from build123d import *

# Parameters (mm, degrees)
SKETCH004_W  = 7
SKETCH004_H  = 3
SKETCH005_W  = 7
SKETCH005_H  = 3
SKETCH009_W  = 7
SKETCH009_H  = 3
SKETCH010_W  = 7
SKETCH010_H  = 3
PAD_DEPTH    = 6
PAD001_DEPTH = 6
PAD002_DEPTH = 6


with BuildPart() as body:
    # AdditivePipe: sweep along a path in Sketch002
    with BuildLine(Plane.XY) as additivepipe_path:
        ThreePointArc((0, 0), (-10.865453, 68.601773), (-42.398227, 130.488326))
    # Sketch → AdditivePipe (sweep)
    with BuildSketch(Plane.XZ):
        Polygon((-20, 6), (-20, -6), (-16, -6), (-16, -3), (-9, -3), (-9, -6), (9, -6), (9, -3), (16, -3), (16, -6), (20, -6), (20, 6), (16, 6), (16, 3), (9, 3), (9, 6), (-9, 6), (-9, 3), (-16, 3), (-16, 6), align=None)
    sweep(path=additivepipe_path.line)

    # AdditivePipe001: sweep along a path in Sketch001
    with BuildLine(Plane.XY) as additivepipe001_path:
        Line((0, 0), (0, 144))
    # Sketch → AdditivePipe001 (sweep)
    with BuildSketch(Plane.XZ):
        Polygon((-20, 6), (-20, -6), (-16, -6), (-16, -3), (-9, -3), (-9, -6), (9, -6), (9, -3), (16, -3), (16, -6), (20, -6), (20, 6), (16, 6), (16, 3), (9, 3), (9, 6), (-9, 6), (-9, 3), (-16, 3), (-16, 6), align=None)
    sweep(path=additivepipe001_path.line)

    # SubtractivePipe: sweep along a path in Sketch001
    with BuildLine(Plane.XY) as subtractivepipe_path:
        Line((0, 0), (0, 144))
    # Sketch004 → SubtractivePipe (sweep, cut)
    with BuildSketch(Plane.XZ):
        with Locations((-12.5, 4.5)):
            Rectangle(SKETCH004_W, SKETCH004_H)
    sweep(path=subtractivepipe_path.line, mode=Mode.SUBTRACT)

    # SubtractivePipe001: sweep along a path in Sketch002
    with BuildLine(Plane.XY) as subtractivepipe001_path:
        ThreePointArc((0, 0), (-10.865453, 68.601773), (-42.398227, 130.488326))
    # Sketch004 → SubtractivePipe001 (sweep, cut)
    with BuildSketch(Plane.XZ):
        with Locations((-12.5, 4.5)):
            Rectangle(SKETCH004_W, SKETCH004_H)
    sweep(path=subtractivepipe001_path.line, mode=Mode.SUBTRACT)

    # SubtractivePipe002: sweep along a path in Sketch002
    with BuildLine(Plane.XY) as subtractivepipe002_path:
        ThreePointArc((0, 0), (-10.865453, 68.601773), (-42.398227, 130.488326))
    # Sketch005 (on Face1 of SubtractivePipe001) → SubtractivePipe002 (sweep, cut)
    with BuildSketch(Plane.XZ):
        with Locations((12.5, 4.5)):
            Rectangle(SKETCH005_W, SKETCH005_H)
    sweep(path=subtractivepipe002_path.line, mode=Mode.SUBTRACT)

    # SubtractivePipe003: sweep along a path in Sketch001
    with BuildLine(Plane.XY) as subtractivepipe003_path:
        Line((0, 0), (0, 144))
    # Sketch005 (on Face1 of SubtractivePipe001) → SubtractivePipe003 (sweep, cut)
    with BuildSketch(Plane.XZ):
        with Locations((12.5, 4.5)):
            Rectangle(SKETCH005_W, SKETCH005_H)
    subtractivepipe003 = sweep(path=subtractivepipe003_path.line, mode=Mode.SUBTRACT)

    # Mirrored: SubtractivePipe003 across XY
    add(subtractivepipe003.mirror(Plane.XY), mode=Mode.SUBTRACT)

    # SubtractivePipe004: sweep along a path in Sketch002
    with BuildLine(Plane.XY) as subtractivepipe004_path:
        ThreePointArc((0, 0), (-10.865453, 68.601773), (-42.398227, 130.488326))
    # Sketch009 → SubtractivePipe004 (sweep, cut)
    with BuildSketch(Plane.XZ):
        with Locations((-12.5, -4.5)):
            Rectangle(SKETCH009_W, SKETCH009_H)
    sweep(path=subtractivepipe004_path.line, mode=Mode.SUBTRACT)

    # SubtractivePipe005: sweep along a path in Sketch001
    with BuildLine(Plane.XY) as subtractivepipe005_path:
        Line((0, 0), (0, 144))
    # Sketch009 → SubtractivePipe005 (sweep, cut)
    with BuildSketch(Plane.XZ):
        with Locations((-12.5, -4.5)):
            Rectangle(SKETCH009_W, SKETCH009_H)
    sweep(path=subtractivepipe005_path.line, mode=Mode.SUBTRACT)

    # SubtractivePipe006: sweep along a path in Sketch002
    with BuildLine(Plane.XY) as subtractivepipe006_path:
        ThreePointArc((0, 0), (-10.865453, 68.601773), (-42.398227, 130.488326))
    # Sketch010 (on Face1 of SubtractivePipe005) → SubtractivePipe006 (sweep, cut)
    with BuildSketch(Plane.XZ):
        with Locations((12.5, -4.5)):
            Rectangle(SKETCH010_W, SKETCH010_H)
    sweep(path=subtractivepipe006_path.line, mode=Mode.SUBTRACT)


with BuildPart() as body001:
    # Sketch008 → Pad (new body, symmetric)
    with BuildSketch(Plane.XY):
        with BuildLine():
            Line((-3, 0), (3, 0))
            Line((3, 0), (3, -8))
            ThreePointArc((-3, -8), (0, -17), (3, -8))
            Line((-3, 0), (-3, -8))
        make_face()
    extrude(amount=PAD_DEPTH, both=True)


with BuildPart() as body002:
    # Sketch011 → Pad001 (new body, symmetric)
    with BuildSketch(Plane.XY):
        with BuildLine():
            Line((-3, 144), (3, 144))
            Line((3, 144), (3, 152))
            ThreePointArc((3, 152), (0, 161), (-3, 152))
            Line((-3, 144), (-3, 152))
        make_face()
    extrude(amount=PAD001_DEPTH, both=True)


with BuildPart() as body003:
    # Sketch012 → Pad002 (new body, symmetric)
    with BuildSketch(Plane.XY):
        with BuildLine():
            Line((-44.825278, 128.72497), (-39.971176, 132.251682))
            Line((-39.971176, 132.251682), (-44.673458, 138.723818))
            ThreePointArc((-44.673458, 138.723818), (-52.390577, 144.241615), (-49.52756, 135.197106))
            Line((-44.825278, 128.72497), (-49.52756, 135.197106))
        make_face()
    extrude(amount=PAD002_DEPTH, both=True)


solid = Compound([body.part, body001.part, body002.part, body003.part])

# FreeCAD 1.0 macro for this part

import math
import FreeCAD as App
import Part
import Sketcher
Q = App.Units.Quantity


def add_polygon(sketch, points):
    """Adds a closed chain of lines whose ends are joined by coincident constraints."""
    first, n = sketch.GeometryCount, len(points)
    for a, b in zip(points, points[1:] + points[:1]):
        sketch.addGeometry(Part.LineSegment(App.Vector(*a, 0), App.Vector(*b, 0)), False)
    for i in range(n):
        sketch.addConstraint(Sketcher.Constraint("Coincident", first + i, 2, first + (i + 1) % n, 1))

doc = App.newDocument("Part")
body = doc.addObject("PartDesign::Body", "Body")

# Sketch on XZ plane
sketch1 = body.newObject("Sketcher::SketchObject", "Sketch")
sketch1.AttachmentSupport = (doc.getObject("XZ_Plane"), [""])
sketch1.MapMode = "FlatFace"
add_polygon(sketch1, [(-20, 6), (-20, -6), (-16, -6), (-16, -3), (-9, -3), (-9, -6), (9, -6), (9, -3), (16, -3), (16, -6), (20, -6), (20, 6), (16, 6), (16, 3), (9, 3), (9, 6), (-9, 6), (-9, 3), (-16, 3), (-16, 6)])  # lines 0-19
sketch1.addConstraint(Sketcher.Constraint("Vertical", 0))
sketch1.addConstraint(Sketcher.Constraint("Horizontal", 1))
sketch1.addConstraint(Sketcher.Constraint("Vertical", 2))
sketch1.addConstraint(Sketcher.Constraint("Horizontal", 3))
sketch1.addConstraint(Sketcher.Constraint("Vertical", 4))
sketch1.addConstraint(Sketcher.Constraint("Horizontal", 5))
sketch1.addConstraint(Sketcher.Constraint("Vertical", 6))
sketch1.addConstraint(Sketcher.Constraint("Horizontal", 7))
sketch1.addConstraint(Sketcher.Constraint("Vertical", 8))
sketch1.addConstraint(Sketcher.Constraint("Horizontal", 9))
sketch1.addConstraint(Sketcher.Constraint("Vertical", 10))
sketch1.addConstraint(Sketcher.Constraint("Horizontal", 11))
sketch1.addConstraint(Sketcher.Constraint("Vertical", 12))
sketch1.addConstraint(Sketcher.Constraint("Horizontal", 13))
sketch1.addConstraint(Sketcher.Constraint("Vertical", 14))
sketch1.addConstraint(Sketcher.Constraint("Horizontal", 15))
sketch1.addConstraint(Sketcher.Constraint("Vertical", 16))
sketch1.addConstraint(Sketcher.Constraint("Horizontal", 17))
sketch1.addConstraint(Sketcher.Constraint("Vertical", 18))
sketch1.addConstraint(Sketcher.Constraint("Horizontal", 19))
sketch1.addConstraint(Sketcher.Constraint("Symmetric", 0, 2, 10, 2, -1, 1))
sketch1.addConstraint(Sketcher.Constraint("Symmetric", 2, 2, 12, 2, -1, 1))
sketch1.addConstraint(Sketcher.Constraint("Symmetric", 4, 2, 14, 2, -1, 1))
sketch1.addConstraint(Sketcher.Constraint("Symmetric", 6, 2, 16, 2, -1, 1))
sketch1.addConstraint(Sketcher.Constraint("Symmetric", 8, 2, 18, 2, -1, 1))
sketch1.addConstraint(Sketcher.Constraint("Symmetric", 3, 2, 6, 2, -2))
sketch1.addConstraint(Sketcher.Constraint("Symmetric", 1, 2, 8, 2, -2))
sketch1.addConstraint(Sketcher.Constraint("Horizontal", 1, 2, 4, 2))
sketch1.addConstraint(Sketcher.Constraint("DistanceX", 1, 1, 1, 2, 4.0))
sketch1.addConstraint(Sketcher.Constraint("DistanceX", 3, 1, 3, 2, 7.0))
sketch1.addConstraint(Sketcher.Constraint("DistanceX", 5, 1, 5, 2, 18.0))
sketch1.addConstraint(Sketcher.Constraint("DistanceY", 0, 2, 0, 1, 12.0))
sketch1.addConstraint(Sketcher.Constraint("DistanceY", 2, 1, 2, 2, 3.0))

# Sketch on XY plane
sketch2 = body.newObject("Sketcher::SketchObject", "Sketch001")
sketch2.AttachmentSupport = (doc.getObject("XY_Plane"), [""])
sketch2.MapMode = "FlatFace"
sketch2.addGeometry(Part.ArcOfCircle(Part.Circle(App.Vector(-221.999993, 0.000002, 0), App.Vector(0, 0, 1), 221.999993), math.radians(-0.000001), math.radians(36)), False)
sketch2.addConstraint(Sketcher.Constraint("Coincident", 0, 1, -1, 1))
sketch2.addConstraint(Sketcher.Constraint("Radius", 0, 221.999993))
sketch2.addConstraint(Sketcher.Constraint("DistanceX", 0, 2, -1, 1, 42.398227))
sketch2.addConstraint(Sketcher.Constraint("DistanceY", -1, 1, 0, 2, 130.488326))
doc.recompute()

additivepipe = body.newObject("PartDesign::AdditivePipe", "AdditivePipe")
additivepipe.Profile = sketch1
additivepipe.Spine = (sketch2, ["Edge1"])

# Sketch on XZ plane
sketch3 = body.newObject("Sketcher::SketchObject", "Sketch002")
sketch3.AttachmentSupport = (doc.getObject("XZ_Plane"), [""])
sketch3.MapMode = "FlatFace"
add_polygon(sketch3, [(-20, 6), (-20, -6), (-16, -6), (-16, -3), (-9, -3), (-9, -6), (9, -6), (9, -3), (16, -3), (16, -6), (20, -6), (20, 6), (16, 6), (16, 3), (9, 3), (9, 6), (-9, 6), (-9, 3), (-16, 3), (-16, 6)])  # lines 0-19
sketch3.addConstraint(Sketcher.Constraint("Vertical", 0))
sketch3.addConstraint(Sketcher.Constraint("Horizontal", 1))
sketch3.addConstraint(Sketcher.Constraint("Vertical", 2))
sketch3.addConstraint(Sketcher.Constraint("Horizontal", 3))
sketch3.addConstraint(Sketcher.Constraint("Vertical", 4))
sketch3.addConstraint(Sketcher.Constraint("Horizontal", 5))
sketch3.addConstraint(Sketcher.Constraint("Vertical", 6))
sketch3.addConstraint(Sketcher.Constraint("Horizontal", 7))
sketch3.addConstraint(Sketcher.Constraint("Vertical", 8))
sketch3.addConstraint(Sketcher.Constraint("Horizontal", 9))
sketch3.addConstraint(Sketcher.Constraint("Vertical", 10))
sketch3.addConstraint(Sketcher.Constraint("Horizontal", 11))
sketch3.addConstraint(Sketcher.Constraint("Vertical", 12))
sketch3.addConstraint(Sketcher.Constraint("Horizontal", 13))
sketch3.addConstraint(Sketcher.Constraint("Vertical", 14))
sketch3.addConstraint(Sketcher.Constraint("Horizontal", 15))
sketch3.addConstraint(Sketcher.Constraint("Vertical", 16))
sketch3.addConstraint(Sketcher.Constraint("Horizontal", 17))
sketch3.addConstraint(Sketcher.Constraint("Vertical", 18))
sketch3.addConstraint(Sketcher.Constraint("Horizontal", 19))
sketch3.addConstraint(Sketcher.Constraint("Symmetric", 0, 2, 10, 2, -1, 1))
sketch3.addConstraint(Sketcher.Constraint("Symmetric", 2, 2, 12, 2, -1, 1))
sketch3.addConstraint(Sketcher.Constraint("Symmetric", 4, 2, 14, 2, -1, 1))
sketch3.addConstraint(Sketcher.Constraint("Symmetric", 6, 2, 16, 2, -1, 1))
sketch3.addConstraint(Sketcher.Constraint("Symmetric", 8, 2, 18, 2, -1, 1))
sketch3.addConstraint(Sketcher.Constraint("Symmetric", 3, 2, 6, 2, -2))
sketch3.addConstraint(Sketcher.Constraint("Symmetric", 1, 2, 8, 2, -2))
sketch3.addConstraint(Sketcher.Constraint("Horizontal", 1, 2, 4, 2))
sketch3.addConstraint(Sketcher.Constraint("DistanceX", 1, 1, 1, 2, 4.0))
sketch3.addConstraint(Sketcher.Constraint("DistanceX", 3, 1, 3, 2, 7.0))
sketch3.addConstraint(Sketcher.Constraint("DistanceX", 5, 1, 5, 2, 18.0))
sketch3.addConstraint(Sketcher.Constraint("DistanceY", 0, 2, 0, 1, 12.0))
sketch3.addConstraint(Sketcher.Constraint("DistanceY", 2, 1, 2, 2, 3.0))

# Sketch on XY plane
sketch4 = body.newObject("Sketcher::SketchObject", "Sketch003")
sketch4.AttachmentSupport = (doc.getObject("XY_Plane"), [""])
sketch4.MapMode = "FlatFace"
sketch4.addGeometry(Part.LineSegment(App.Vector(0, 0, 0), App.Vector(0, 144, 0)), False)
sketch4.addConstraint(Sketcher.Constraint("Vertical", 0))
sketch4.addConstraint(Sketcher.Constraint("Coincident", 0, 1, -1, 1))
sketch4.addConstraint(Sketcher.Constraint("DistanceY", 0, 1, 0, 2, 144.0))
doc.recompute()

additivepipe2 = body.newObject("PartDesign::AdditivePipe", "AdditivePipe001")
additivepipe2.Profile = sketch3
additivepipe2.Spine = (sketch4, ["Edge1"])

# Sketch on XZ plane
sketch5 = body.newObject("Sketcher::SketchObject", "Sketch004")
sketch5.AttachmentSupport = (doc.getObject("XZ_Plane"), [""])
sketch5.MapMode = "FlatFace"
add_polygon(sketch5, [(-16, 6), (-16, 3), (-9, 3), (-9, 6)])  # lines 0-3
sketch5.addConstraint(Sketcher.Constraint("Vertical", 0))
sketch5.addConstraint(Sketcher.Constraint("Horizontal", 1))
sketch5.addConstraint(Sketcher.Constraint("Vertical", 2))
sketch5.addConstraint(Sketcher.Constraint("Horizontal", 3))
sketch5.addConstraint(Sketcher.Constraint("DistanceX", 1, 1, 1, 2, 7.0))
sketch5.addConstraint(Sketcher.Constraint("DistanceY", 0, 2, 0, 1, 3.0))
sketch5.addConstraint(Sketcher.Constraint("DistanceX", 0, 2, -1, 1, 16.0))
sketch5.addConstraint(Sketcher.Constraint("DistanceY", -1, 1, 0, 2, 3.0))

# Sketch on XY plane
sketch6 = body.newObject("Sketcher::SketchObject", "Sketch005")
sketch6.AttachmentSupport = (doc.getObject("XY_Plane"), [""])
sketch6.MapMode = "FlatFace"
sketch6.addGeometry(Part.LineSegment(App.Vector(0, 0, 0), App.Vector(0, 144, 0)), False)
sketch6.addConstraint(Sketcher.Constraint("Vertical", 0))
sketch6.addConstraint(Sketcher.Constraint("Coincident", 0, 1, -1, 1))
sketch6.addConstraint(Sketcher.Constraint("DistanceY", 0, 1, 0, 2, 144.0))
doc.recompute()

subtractivepipe = body.newObject("PartDesign::SubtractivePipe", "SubtractivePipe")
subtractivepipe.Profile = sketch5
subtractivepipe.Spine = (sketch6, ["Edge1"])

# Sketch on XZ plane
sketch7 = body.newObject("Sketcher::SketchObject", "Sketch006")
sketch7.AttachmentSupport = (doc.getObject("XZ_Plane"), [""])
sketch7.MapMode = "FlatFace"
add_polygon(sketch7, [(-16, 6), (-16, 3), (-9, 3), (-9, 6)])  # lines 0-3
sketch7.addConstraint(Sketcher.Constraint("Vertical", 0))
sketch7.addConstraint(Sketcher.Constraint("Horizontal", 1))
sketch7.addConstraint(Sketcher.Constraint("Vertical", 2))
sketch7.addConstraint(Sketcher.Constraint("Horizontal", 3))
sketch7.addConstraint(Sketcher.Constraint("DistanceX", 1, 1, 1, 2, 7.0))
sketch7.addConstraint(Sketcher.Constraint("DistanceY", 0, 2, 0, 1, 3.0))
sketch7.addConstraint(Sketcher.Constraint("DistanceX", 0, 2, -1, 1, 16.0))
sketch7.addConstraint(Sketcher.Constraint("DistanceY", -1, 1, 0, 2, 3.0))

# Sketch on XY plane
sketch8 = body.newObject("Sketcher::SketchObject", "Sketch007")
sketch8.AttachmentSupport = (doc.getObject("XY_Plane"), [""])
sketch8.MapMode = "FlatFace"
sketch8.addGeometry(Part.ArcOfCircle(Part.Circle(App.Vector(-221.999993, 0.000002, 0), App.Vector(0, 0, 1), 221.999993), math.radians(-0.000001), math.radians(36)), False)
sketch8.addConstraint(Sketcher.Constraint("Coincident", 0, 1, -1, 1))
sketch8.addConstraint(Sketcher.Constraint("Radius", 0, 221.999993))
sketch8.addConstraint(Sketcher.Constraint("DistanceX", 0, 2, -1, 1, 42.398227))
sketch8.addConstraint(Sketcher.Constraint("DistanceY", -1, 1, 0, 2, 130.488326))
doc.recompute()

subtractivepipe2 = body.newObject("PartDesign::SubtractivePipe", "SubtractivePipe001")
subtractivepipe2.Profile = sketch7
subtractivepipe2.Spine = (sketch8, ["Edge1"])

# Sketch on XZ plane
sketch9 = body.newObject("Sketcher::SketchObject", "Sketch008")
sketch9.AttachmentSupport = (doc.getObject("XZ_Plane"), [""])
sketch9.MapMode = "FlatFace"
add_polygon(sketch9, [(9, 6), (9, 3), (16, 3), (16, 6)])  # lines 0-3
sketch9.addConstraint(Sketcher.Constraint("Vertical", 0))
sketch9.addConstraint(Sketcher.Constraint("Horizontal", 1))
sketch9.addConstraint(Sketcher.Constraint("Vertical", 2))
sketch9.addConstraint(Sketcher.Constraint("Horizontal", 3))
sketch9.addConstraint(Sketcher.Constraint("DistanceX", 1, 1, 1, 2, 7.0))
sketch9.addConstraint(Sketcher.Constraint("DistanceY", 0, 2, 0, 1, 3.0))
sketch9.addConstraint(Sketcher.Constraint("DistanceX", -1, 1, 0, 2, 9.0))
sketch9.addConstraint(Sketcher.Constraint("DistanceY", -1, 1, 0, 2, 3.0))

# Sketch on XY plane
sketch10 = body.newObject("Sketcher::SketchObject", "Sketch009")
sketch10.AttachmentSupport = (doc.getObject("XY_Plane"), [""])
sketch10.MapMode = "FlatFace"
sketch10.addGeometry(Part.ArcOfCircle(Part.Circle(App.Vector(-221.999993, 0.000002, 0), App.Vector(0, 0, 1), 221.999993), math.radians(-0.000001), math.radians(36)), False)
sketch10.addConstraint(Sketcher.Constraint("Coincident", 0, 1, -1, 1))
sketch10.addConstraint(Sketcher.Constraint("Radius", 0, 221.999993))
sketch10.addConstraint(Sketcher.Constraint("DistanceX", 0, 2, -1, 1, 42.398227))
sketch10.addConstraint(Sketcher.Constraint("DistanceY", -1, 1, 0, 2, 130.488326))
doc.recompute()

subtractivepipe3 = body.newObject("PartDesign::SubtractivePipe", "SubtractivePipe002")
subtractivepipe3.Profile = sketch9
subtractivepipe3.Spine = (sketch10, ["Edge1"])

# Sketch on XZ plane
sketch11 = body.newObject("Sketcher::SketchObject", "Sketch010")
sketch11.AttachmentSupport = (doc.getObject("XZ_Plane"), [""])
sketch11.MapMode = "FlatFace"
add_polygon(sketch11, [(9, 6), (9, 3), (16, 3), (16, 6)])  # lines 0-3
sketch11.addConstraint(Sketcher.Constraint("Vertical", 0))
sketch11.addConstraint(Sketcher.Constraint("Horizontal", 1))
sketch11.addConstraint(Sketcher.Constraint("Vertical", 2))
sketch11.addConstraint(Sketcher.Constraint("Horizontal", 3))
sketch11.addConstraint(Sketcher.Constraint("DistanceX", 1, 1, 1, 2, 7.0))
sketch11.addConstraint(Sketcher.Constraint("DistanceY", 0, 2, 0, 1, 3.0))
sketch11.addConstraint(Sketcher.Constraint("DistanceX", -1, 1, 0, 2, 9.0))
sketch11.addConstraint(Sketcher.Constraint("DistanceY", -1, 1, 0, 2, 3.0))

# Sketch on XY plane
sketch12 = body.newObject("Sketcher::SketchObject", "Sketch011")
sketch12.AttachmentSupport = (doc.getObject("XY_Plane"), [""])
sketch12.MapMode = "FlatFace"
sketch12.addGeometry(Part.LineSegment(App.Vector(0, 0, 0), App.Vector(0, 144, 0)), False)
sketch12.addConstraint(Sketcher.Constraint("Vertical", 0))
sketch12.addConstraint(Sketcher.Constraint("Coincident", 0, 1, -1, 1))
sketch12.addConstraint(Sketcher.Constraint("DistanceY", 0, 1, 0, 2, 144.0))
doc.recompute()

subtractivepipe4 = body.newObject("PartDesign::SubtractivePipe", "SubtractivePipe003")
subtractivepipe4.Profile = sketch11
subtractivepipe4.Spine = (sketch12, ["Edge1"])
doc.recompute()

mirrored = body.newObject("PartDesign::Mirrored", "Mirrored")
mirrored.Originals = [subtractivepipe4]
mirrored.MirrorPlane = (doc.getObject("XY_Plane"), [""])
body.Tip = mirrored

# Sketch on XZ plane
sketch13 = body.newObject("Sketcher::SketchObject", "Sketch012")
sketch13.AttachmentSupport = (doc.getObject("XZ_Plane"), [""])
sketch13.MapMode = "FlatFace"
add_polygon(sketch13, [(-16, -3), (-16, -6), (-9, -6), (-9, -3)])  # lines 0-3
sketch13.addConstraint(Sketcher.Constraint("Vertical", 0))
sketch13.addConstraint(Sketcher.Constraint("Horizontal", 1))
sketch13.addConstraint(Sketcher.Constraint("Vertical", 2))
sketch13.addConstraint(Sketcher.Constraint("Horizontal", 3))
sketch13.addConstraint(Sketcher.Constraint("DistanceX", 1, 1, 1, 2, 7.0))
sketch13.addConstraint(Sketcher.Constraint("DistanceY", 0, 2, 0, 1, 3.0))
sketch13.addConstraint(Sketcher.Constraint("DistanceX", 0, 2, -1, 1, 16.0))
sketch13.addConstraint(Sketcher.Constraint("DistanceY", 0, 2, -1, 1, 6.0))

# Sketch on XY plane
sketch14 = body.newObject("Sketcher::SketchObject", "Sketch013")
sketch14.AttachmentSupport = (doc.getObject("XY_Plane"), [""])
sketch14.MapMode = "FlatFace"
sketch14.addGeometry(Part.ArcOfCircle(Part.Circle(App.Vector(-221.999993, 0.000002, 0), App.Vector(0, 0, 1), 221.999993), math.radians(-0.000001), math.radians(36)), False)
sketch14.addConstraint(Sketcher.Constraint("Coincident", 0, 1, -1, 1))
sketch14.addConstraint(Sketcher.Constraint("Radius", 0, 221.999993))
sketch14.addConstraint(Sketcher.Constraint("DistanceX", 0, 2, -1, 1, 42.398227))
sketch14.addConstraint(Sketcher.Constraint("DistanceY", -1, 1, 0, 2, 130.488326))
doc.recompute()

subtractivepipe5 = body.newObject("PartDesign::SubtractivePipe", "SubtractivePipe004")
subtractivepipe5.Profile = sketch13
subtractivepipe5.Spine = (sketch14, ["Edge1"])

# Sketch on XZ plane
sketch15 = body.newObject("Sketcher::SketchObject", "Sketch014")
sketch15.AttachmentSupport = (doc.getObject("XZ_Plane"), [""])
sketch15.MapMode = "FlatFace"
add_polygon(sketch15, [(-16, -3), (-16, -6), (-9, -6), (-9, -3)])  # lines 0-3
sketch15.addConstraint(Sketcher.Constraint("Vertical", 0))
sketch15.addConstraint(Sketcher.Constraint("Horizontal", 1))
sketch15.addConstraint(Sketcher.Constraint("Vertical", 2))
sketch15.addConstraint(Sketcher.Constraint("Horizontal", 3))
sketch15.addConstraint(Sketcher.Constraint("DistanceX", 1, 1, 1, 2, 7.0))
sketch15.addConstraint(Sketcher.Constraint("DistanceY", 0, 2, 0, 1, 3.0))
sketch15.addConstraint(Sketcher.Constraint("DistanceX", 0, 2, -1, 1, 16.0))
sketch15.addConstraint(Sketcher.Constraint("DistanceY", 0, 2, -1, 1, 6.0))

# Sketch on XY plane
sketch16 = body.newObject("Sketcher::SketchObject", "Sketch015")
sketch16.AttachmentSupport = (doc.getObject("XY_Plane"), [""])
sketch16.MapMode = "FlatFace"
sketch16.addGeometry(Part.LineSegment(App.Vector(0, 0, 0), App.Vector(0, 144, 0)), False)
sketch16.addConstraint(Sketcher.Constraint("Vertical", 0))
sketch16.addConstraint(Sketcher.Constraint("Coincident", 0, 1, -1, 1))
sketch16.addConstraint(Sketcher.Constraint("DistanceY", 0, 1, 0, 2, 144.0))
doc.recompute()

subtractivepipe6 = body.newObject("PartDesign::SubtractivePipe", "SubtractivePipe005")
subtractivepipe6.Profile = sketch15
subtractivepipe6.Spine = (sketch16, ["Edge1"])

# Sketch on XZ plane
sketch17 = body.newObject("Sketcher::SketchObject", "Sketch016")
sketch17.AttachmentSupport = (doc.getObject("XZ_Plane"), [""])
sketch17.MapMode = "FlatFace"
add_polygon(sketch17, [(9, -3), (9, -6), (16, -6), (16, -3)])  # lines 0-3
sketch17.addConstraint(Sketcher.Constraint("Vertical", 0))
sketch17.addConstraint(Sketcher.Constraint("Horizontal", 1))
sketch17.addConstraint(Sketcher.Constraint("Vertical", 2))
sketch17.addConstraint(Sketcher.Constraint("Horizontal", 3))
sketch17.addConstraint(Sketcher.Constraint("DistanceX", 1, 1, 1, 2, 7.0))
sketch17.addConstraint(Sketcher.Constraint("DistanceY", 0, 2, 0, 1, 3.0))
sketch17.addConstraint(Sketcher.Constraint("DistanceX", -1, 1, 0, 2, 9.0))
sketch17.addConstraint(Sketcher.Constraint("DistanceY", 0, 2, -1, 1, 6.0))

# Sketch on XY plane
sketch18 = body.newObject("Sketcher::SketchObject", "Sketch017")
sketch18.AttachmentSupport = (doc.getObject("XY_Plane"), [""])
sketch18.MapMode = "FlatFace"
sketch18.addGeometry(Part.ArcOfCircle(Part.Circle(App.Vector(-221.999993, 0.000002, 0), App.Vector(0, 0, 1), 221.999993), math.radians(-0.000001), math.radians(36)), False)
sketch18.addConstraint(Sketcher.Constraint("Coincident", 0, 1, -1, 1))
sketch18.addConstraint(Sketcher.Constraint("Radius", 0, 221.999993))
sketch18.addConstraint(Sketcher.Constraint("DistanceX", 0, 2, -1, 1, 42.398227))
sketch18.addConstraint(Sketcher.Constraint("DistanceY", -1, 1, 0, 2, 130.488326))
doc.recompute()

subtractivepipe7 = body.newObject("PartDesign::SubtractivePipe", "SubtractivePipe006")
subtractivepipe7.Profile = sketch17
subtractivepipe7.Spine = (sketch18, ["Edge1"])
body2 = doc.addObject("PartDesign::Body", "Body001")

# Sketch on XY plane
sketch19 = body2.newObject("Sketcher::SketchObject", "Sketch018")
sketch19.AttachmentSupport = (doc.getObject("XY_Plane001"), [""])
sketch19.MapMode = "FlatFace"
sketch19.addGeometry(Part.LineSegment(App.Vector(3, 0, 0), App.Vector(-3, 0, 0)), False)
sketch19.addGeometry(Part.LineSegment(App.Vector(-3, 0, 0), App.Vector(-3, -8, 0)), False)
sketch19.addGeometry(Part.ArcOfCircle(Part.Circle(App.Vector(0, -12, 0), App.Vector(0, 0, 1), 5), math.radians(126.869898), math.radians(413.130102)), False)
sketch19.addGeometry(Part.LineSegment(App.Vector(3, -8, 0), App.Vector(3, 0, 0)), False)
sketch19.addConstraint(Sketcher.Constraint("Coincident", 0, 2, 1, 1))
sketch19.addConstraint(Sketcher.Constraint("Coincident", 1, 2, 2, 1))
sketch19.addConstraint(Sketcher.Constraint("Coincident", 2, 2, 3, 1))
sketch19.addConstraint(Sketcher.Constraint("Coincident", 3, 2, 0, 1))
sketch19.addConstraint(Sketcher.Constraint("Horizontal", 0))
sketch19.addConstraint(Sketcher.Constraint("Vertical", 1))
sketch19.addConstraint(Sketcher.Constraint("Vertical", 3))
sketch19.addConstraint(Sketcher.Constraint("Symmetric", 0, 2, 3, 2, -1, 1))
sketch19.addConstraint(Sketcher.Constraint("PointOnObject", 2, 3, -2))
sketch19.addConstraint(Sketcher.Constraint("Radius", 2, 5.0))
sketch19.addConstraint(Sketcher.Constraint("DistanceX", 0, 2, 0, 1, 6.0))
sketch19.addConstraint(Sketcher.Constraint("DistanceY", 1, 2, 1, 1, 8.0))
pad1 = body2.newObject("PartDesign::Pad", "Pad")
pad1.Profile = sketch19
pad1.Length = 12
pad1.Midplane = True
body3 = doc.addObject("PartDesign::Body", "Body002")

# Sketch on XY plane
sketch20 = body3.newObject("Sketcher::SketchObject", "Sketch019")
sketch20.AttachmentSupport = (doc.getObject("XY_Plane002"), [""])
sketch20.MapMode = "FlatFace"
sketch20.addGeometry(Part.LineSegment(App.Vector(-3, 144, 0), App.Vector(3, 144, 0)), False)
sketch20.addGeometry(Part.LineSegment(App.Vector(3, 144, 0), App.Vector(3, 152, 0)), False)
sketch20.addGeometry(Part.ArcOfCircle(Part.Circle(App.Vector(0, 156, 0), App.Vector(0, 0, 1), 5), math.radians(-53.130102), math.radians(233.130102)), False)
sketch20.addGeometry(Part.LineSegment(App.Vector(-3, 152, 0), App.Vector(-3, 144, 0)), False)
sketch20.addConstraint(Sketcher.Constraint("Coincident", 0, 2, 1, 1))
sketch20.addConstraint(Sketcher.Constraint("Coincident", 1, 2, 2, 1))
sketch20.addConstraint(Sketcher.Constraint("Coincident", 2, 2, 3, 1))
sketch20.addConstraint(Sketcher.Constraint("Coincident", 3, 2, 0, 1))
sketch20.addConstraint(Sketcher.Constraint("Horizontal", 0))
sketch20.addConstraint(Sketcher.Constraint("Vertical", 1))
sketch20.addConstraint(Sketcher.Constraint("Vertical", 3))
sketch20.addConstraint(Sketcher.Constraint("Symmetric", 1, 2, 2, 2, -2))
sketch20.addConstraint(Sketcher.Constraint("Radius", 2, 5.0))
sketch20.addConstraint(Sketcher.Constraint("DistanceX", 0, 1, 0, 2, 6.0))
sketch20.addConstraint(Sketcher.Constraint("DistanceY", 1, 1, 1, 2, 8.0))
sketch20.addConstraint(Sketcher.Constraint("DistanceY", -1, 1, 2, 3, 156.0))
pad2 = body3.newObject("PartDesign::Pad", "Pad001")
pad2.Profile = sketch20
pad2.Length = 12
pad2.Midplane = True
body4 = doc.addObject("PartDesign::Body", "Body003")

# Sketch on XY plane
sketch21 = body4.newObject("Sketcher::SketchObject", "Sketch020")
sketch21.AttachmentSupport = (doc.getObject("XY_Plane003"), [""])
sketch21.MapMode = "FlatFace"
sketch21.addGeometry(Part.LineSegment(App.Vector(-44.825278, 128.72497, 0), App.Vector(-39.971176, 132.251682, 0)), False)
sketch21.addGeometry(Part.LineSegment(App.Vector(-39.971176, 132.251682, 0), App.Vector(-44.673458, 138.723818, 0)), False)
sketch21.addGeometry(Part.ArcOfCircle(Part.Circle(App.Vector(-49.45165, 140.19653, 0), App.Vector(0, 0, 1), 5), math.radians(-17.130099), math.radians(269.130106)), False)
sketch21.addGeometry(Part.LineSegment(App.Vector(-49.52756, 135.197106, 0), App.Vector(-44.825278, 128.72497, 0)), False)
sketch21.addConstraint(Sketcher.Constraint("Coincident", 0, 2, 1, 1))
sketch21.addConstraint(Sketcher.Constraint("Coincident", 1, 2, 2, 1))
sketch21.addConstraint(Sketcher.Constraint("Coincident", 2, 2, 3, 1))
sketch21.addConstraint(Sketcher.Constraint("Coincident", 3, 2, 0, 1))
sketch21.addConstraint(Sketcher.Constraint("Perpendicular", 0, 1))
sketch21.addConstraint(Sketcher.Constraint("Parallel", 1, 3))
sketch21.addConstraint(Sketcher.Constraint("Equal", 1, 3))
sketch21.addConstraint(Sketcher.Constraint("Radius", 2, 5.0))
sketch21.addConstraint(Sketcher.Constraint("Angle", 0, Q("36.000004 deg")))
sketch21.addConstraint(Sketcher.Constraint("Distance", 0, 6.0))
sketch21.addConstraint(Sketcher.Constraint("Distance", 1, 8.0))
sketch21.addConstraint(Sketcher.Constraint("DistanceX", 2, 3, -1, 1, 49.45165))
sketch21.addConstraint(Sketcher.Constraint("DistanceY", -1, 1, 2, 3, 140.19653))
pad3 = body4.newObject("PartDesign::Pad", "Pad002")
pad3.Profile = sketch21
pad3.Length = 12
pad3.Midplane = True

doc.recompute()
